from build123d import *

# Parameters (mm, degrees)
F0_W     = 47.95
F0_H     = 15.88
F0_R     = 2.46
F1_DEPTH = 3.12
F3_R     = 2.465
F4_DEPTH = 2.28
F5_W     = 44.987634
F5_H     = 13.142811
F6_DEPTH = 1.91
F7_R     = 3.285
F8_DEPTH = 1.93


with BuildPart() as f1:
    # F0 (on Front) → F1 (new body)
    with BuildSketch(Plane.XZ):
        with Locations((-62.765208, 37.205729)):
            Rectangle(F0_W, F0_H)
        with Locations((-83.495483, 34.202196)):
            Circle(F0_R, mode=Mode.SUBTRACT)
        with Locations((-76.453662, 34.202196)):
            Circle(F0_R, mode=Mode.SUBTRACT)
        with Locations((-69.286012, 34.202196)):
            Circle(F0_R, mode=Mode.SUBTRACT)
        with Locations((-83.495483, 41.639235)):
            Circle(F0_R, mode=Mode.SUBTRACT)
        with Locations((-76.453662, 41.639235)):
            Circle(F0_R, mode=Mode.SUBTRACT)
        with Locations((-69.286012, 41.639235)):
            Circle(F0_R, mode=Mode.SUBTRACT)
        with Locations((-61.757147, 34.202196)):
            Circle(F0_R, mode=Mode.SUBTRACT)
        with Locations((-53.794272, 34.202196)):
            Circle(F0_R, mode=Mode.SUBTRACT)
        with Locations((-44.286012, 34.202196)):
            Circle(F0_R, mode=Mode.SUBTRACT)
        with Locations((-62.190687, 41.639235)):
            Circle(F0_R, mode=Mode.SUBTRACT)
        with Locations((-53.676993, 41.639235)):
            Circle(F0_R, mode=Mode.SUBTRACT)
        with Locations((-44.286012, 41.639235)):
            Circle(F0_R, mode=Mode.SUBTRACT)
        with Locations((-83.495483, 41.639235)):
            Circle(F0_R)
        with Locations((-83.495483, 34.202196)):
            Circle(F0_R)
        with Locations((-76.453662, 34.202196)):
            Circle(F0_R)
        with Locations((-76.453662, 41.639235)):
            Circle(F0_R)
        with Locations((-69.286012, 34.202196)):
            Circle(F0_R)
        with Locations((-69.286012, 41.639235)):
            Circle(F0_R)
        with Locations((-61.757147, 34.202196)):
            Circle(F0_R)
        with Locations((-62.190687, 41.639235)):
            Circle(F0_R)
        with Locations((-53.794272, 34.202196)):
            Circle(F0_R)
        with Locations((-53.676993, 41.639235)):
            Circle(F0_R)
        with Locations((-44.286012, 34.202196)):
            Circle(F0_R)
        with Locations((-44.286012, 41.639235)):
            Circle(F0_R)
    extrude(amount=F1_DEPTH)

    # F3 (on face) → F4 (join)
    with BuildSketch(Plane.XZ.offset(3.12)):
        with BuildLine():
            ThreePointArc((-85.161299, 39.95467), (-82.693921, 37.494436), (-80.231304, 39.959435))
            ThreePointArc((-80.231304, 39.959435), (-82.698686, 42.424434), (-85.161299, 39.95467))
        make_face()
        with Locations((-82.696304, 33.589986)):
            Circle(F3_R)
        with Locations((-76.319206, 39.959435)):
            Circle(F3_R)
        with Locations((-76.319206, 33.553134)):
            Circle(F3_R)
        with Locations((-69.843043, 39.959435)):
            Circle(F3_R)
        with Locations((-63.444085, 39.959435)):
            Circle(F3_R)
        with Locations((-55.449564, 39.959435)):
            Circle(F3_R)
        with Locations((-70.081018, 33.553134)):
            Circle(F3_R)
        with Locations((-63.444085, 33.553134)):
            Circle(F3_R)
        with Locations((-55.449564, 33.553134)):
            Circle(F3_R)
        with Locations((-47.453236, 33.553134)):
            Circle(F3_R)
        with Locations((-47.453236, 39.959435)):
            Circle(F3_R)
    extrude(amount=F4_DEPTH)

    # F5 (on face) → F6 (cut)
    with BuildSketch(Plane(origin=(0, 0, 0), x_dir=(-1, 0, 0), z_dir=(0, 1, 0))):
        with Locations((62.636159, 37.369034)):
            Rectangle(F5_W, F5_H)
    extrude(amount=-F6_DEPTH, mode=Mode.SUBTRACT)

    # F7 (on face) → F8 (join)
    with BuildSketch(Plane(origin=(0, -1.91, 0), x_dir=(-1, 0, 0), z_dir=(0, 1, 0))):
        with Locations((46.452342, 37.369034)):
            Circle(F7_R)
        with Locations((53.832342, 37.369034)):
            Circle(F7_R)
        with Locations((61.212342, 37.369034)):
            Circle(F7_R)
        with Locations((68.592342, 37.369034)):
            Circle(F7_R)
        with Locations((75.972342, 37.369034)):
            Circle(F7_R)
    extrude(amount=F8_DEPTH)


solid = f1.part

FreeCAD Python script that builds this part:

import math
import FreeCAD as App
import Part
import Sketcher
from FreeCAD import Vector


def add_polygon(sketch, points):
    """Adds a closed chain of lines whose ends are joined by coincident constraints."""
    first, n = sketch.GeometryCount, len(points)
    for a, b in zip(points, points[1:] + points[:1]):
        sketch.addGeometry(Part.LineSegment(App.Vector(*a, 0), App.Vector(*b, 0)), False)
    for i in range(n):
        sketch.addConstraint(Sketcher.Constraint("Coincident", first + i, 2, first + (i + 1) % n, 1))

doc = App.newDocument("Part")
body = doc.addObject("PartDesign::Body", "Body")

# Sketch on XZ plane
sketch1 = body.newObject("Sketcher::SketchObject", "Sketch")
sketch1.AttachmentSupport = (doc.getObject("XZ_Plane"), [""])
sketch1.MapMode = "FlatFace"
add_polygon(sketch1, [(-86.740208, 45.145729), (-86.740208, 29.265729), (-38.790208, 29.265729), (-38.790208, 45.145729)])  # lines 0-3
sketch1.addConstraint([
    Sketcher.Constraint("Vertical", 0),
    Sketcher.Constraint("Horizontal", 1),
    Sketcher.Constraint("Vertical", 2),
    Sketcher.Constraint("Horizontal", 3),
    Sketcher.Constraint("DistanceX", 1, 1, 1, 2, 47.95),
    Sketcher.Constraint("DistanceY", 0, 2, 0, 1, 15.88),
    Sketcher.Constraint("DistanceY", -1, 1, 0, 2, 29.265729),
    Sketcher.Constraint("DistanceX", 0, 2, -1, 1, 86.740208),
])
pad1 = body.newObject("PartDesign::Pad", "Pad")
pad1.Profile = sketch1
pad1.Length = 3.12

# Sketch on XZ plane
sketch2 = body.newObject("Sketcher::SketchObject", "Sketch001")
sketch2.AttachmentSupport = (doc.getObject("XZ_Plane"), [""])
sketch2.MapMode = "FlatFace"
sketch2.AttachmentOffset = App.Placement(Vector(0, 0, 3.12), App.Rotation())
sketch2.addGeometry([
    Part.ArcOfCircle(Part.Circle(Vector(-82.696304, 39.959435, 0), Vector(0, 0, 1), 2.465), math.radians(-179.889252), math.radians(0.000008)),  # 0
    Part.ArcOfCircle(Part.Circle(Vector(-82.696304, 39.959435, 0), Vector(0, 0, 1), 2.465), math.radians(-0.000008), math.radians(180.110765)),  # 1
    Part.Circle(Vector(-82.696304, 33.589986, 0), Vector(0, 0, 1), 2.465),  # 2
    Part.Circle(Vector(-76.319206, 39.959435, 0), Vector(0, 0, 1), 2.465),  # 3
    Part.Circle(Vector(-76.319206, 33.553134, 0), Vector(0, 0, 1), 2.465),  # 4
    Part.Circle(Vector(-69.843043, 39.959435, 0), Vector(0, 0, 1), 2.465),  # 5
    Part.Circle(Vector(-63.444085, 39.959435, 0), Vector(0, 0, 1), 2.465),  # 6
    Part.Circle(Vector(-55.449564, 39.959435, 0), Vector(0, 0, 1), 2.465),  # 7
    Part.Circle(Vector(-70.081018, 33.553134, 0), Vector(0, 0, 1), 2.465),  # 8
    Part.Circle(Vector(-63.444085, 33.553134, 0), Vector(0, 0, 1), 2.465),  # 9
    Part.Circle(Vector(-55.449564, 33.553134, 0), Vector(0, 0, 1), 2.465),  # 10
    Part.Circle(Vector(-47.453236, 33.553134, 0), Vector(0, 0, 1), 2.465),  # 11
    Part.Circle(Vector(-47.453236, 39.959435, 0), Vector(0, 0, 1), 2.465),  # 12
], False)
sketch2.addConstraint([
    Sketcher.Constraint("Tangent", 0, 1, 1, 2),
    Sketcher.Constraint("Coincident", 1, 1, 0, 2),
    Sketcher.Constraint("Equal", 1, 2),
    Sketcher.Constraint("Equal", 2, 3),
    Sketcher.Constraint("Equal", 3, 4),
    Sketcher.Constraint("Equal", 4, 5),
    Sketcher.Constraint("Equal", 5, 6),
    Sketcher.Constraint("Equal", 6, 7),
    Sketcher.Constraint("Equal", 7, 8),
    Sketcher.Constraint("Equal", 8, 9),
    Sketcher.Constraint("Equal", 9, 10),
    Sketcher.Constraint("Equal", 10, 11),
    Sketcher.Constraint("Equal", 11, 12),
    Sketcher.Constraint("Horizontal", 1, 3, 3, 3),
    Sketcher.Constraint("Horizontal", 3, 3, 5, 3),
    Sketcher.Constraint("Horizontal", 5, 3, 6, 3),
    Sketcher.Constraint("Horizontal", 6, 3, 7, 3),
    Sketcher.Constraint("Horizontal", 4, 3, 8, 3),
    Sketcher.Constraint("Horizontal", 8, 3, 9, 3),
    Sketcher.Constraint("Horizontal", 9, 3, 10, 3),
    Sketcher.Constraint("Horizontal", 10, 3, 11, 3),
    Sketcher.Constraint("Horizontal", 7, 3, 12, 3),
    Sketcher.Constraint("Horizontal", 12, 3, 1, 1),
    Sketcher.Constraint("Vertical", 1, 3, 2, 3),
    Sketcher.Constraint("Vertical", 3, 3, 4, 3),
    Sketcher.Constraint("Vertical", 6, 3, 9, 3),
    Sketcher.Constraint("Vertical", 7, 3, 10, 3),
    Sketcher.Constraint("Vertical", 11, 3, 12, 3),
    Sketcher.Constraint("Diameter", 2, 4.93),
    Sketcher.Constraint("DistanceX", 0, 1, -1, 1, 85.161299),
    Sketcher.Constraint("DistanceX", 2, 3, 3, 3, 6.377098),
    Sketcher.Constraint("DistanceY", 4, 3, 3, 3, 6.406301),
    Sketcher.Constraint("DistanceX", 8, 3, -1, 1, 70.081018),
    Sketcher.Constraint("DistanceY", -1, 1, 0, 1, 39.95467),
    Sketcher.Constraint("DistanceY", 2, 3, 0, 3, 6.369449),
    Sketcher.Constraint("DistanceX", 0, 3, 5, 3, 12.853261),
    Sketcher.Constraint("DistanceX", 3, 3, 6, 3, 12.875121),
    Sketcher.Constraint("DistanceX", 6, 3, 7, 3, 7.994521),
    Sketcher.Constraint("DistanceX", 10, 3, 11, 3, 7.996328),
    Sketcher.Constraint("DistanceY", -1, 1, 0, 3, 39.959435),
])
pad2 = body.newObject("PartDesign::Pad", "Pad001")
pad2.Profile = sketch2
pad2.Length = 2.28

# Sketch on XZ plane
sketch3 = body.newObject("Sketcher::SketchObject", "Sketch002")
sketch3.AttachmentSupport = (doc.getObject("XZ_Plane"), [""])
sketch3.MapMode = "FlatFace"
add_polygon(sketch3, [(-40.142342, 43.940439), (-40.142342, 30.797628), (-85.129976, 30.797628), (-85.129976, 43.940439)])  # lines 0-3
sketch3.addConstraint([
    Sketcher.Constraint("Vertical", 0),
    Sketcher.Constraint("Horizontal", 1),
    Sketcher.Constraint("Vertical", 2),
    Sketcher.Constraint("Horizontal", 3),
    Sketcher.Constraint("DistanceY", 0, 2, 0, 1, 13.142811),
    Sketcher.Constraint("DistanceX", 1, 2, 1, 1, 44.987634),
    Sketcher.Constraint("DistanceY", -1, 1, 0, 2, 30.797628),
    Sketcher.Constraint("DistanceX", 0, 2, -1, 1, 40.142342),
])
pocket1 = body.newObject("PartDesign::Pocket", "Pocket")
pocket1.Profile = sketch3
pocket1.Length = 1.91
pocket1.Reversed = True

# Sketch on XZ plane
sketch4 = body.newObject("Sketcher::SketchObject", "Sketch003")
sketch4.AttachmentSupport = (doc.getObject("XZ_Plane"), [""])
sketch4.MapMode = "FlatFace"
sketch4.AttachmentOffset = App.Placement(Vector(0, 0, 1.91), App.Rotation())
sketch4.addGeometry([
    Part.Circle(Vector(-46.452342, 37.369034, 0), Vector(0, 0, 1), 3.285),  # 0
    Part.Circle(Vector(-53.832342, 37.369034, 0), Vector(0, 0, 1), 3.285),  # 1
    Part.Circle(Vector(-61.212342, 37.369034, 0), Vector(0, 0, 1), 3.285),  # 2
    Part.Circle(Vector(-68.592342, 37.369034, 0), Vector(0, 0, 1), 3.285),  # 3
    Part.Circle(Vector(-75.972342, 37.369034, 0), Vector(0, 0, 1), 3.285),  # 4
], False)
sketch4.addConstraint([
    Sketcher.Constraint("Equal", 0, 1),
    Sketcher.Constraint("Equal", 1, 2),
    Sketcher.Constraint("Equal", 2, 3),
    Sketcher.Constraint("Equal", 3, 4),
    Sketcher.Constraint("Horizontal", 0, 3, 1, 3),
    Sketcher.Constraint("Horizontal", 1, 3, 2, 3),
    Sketcher.Constraint("Horizontal", 2, 3, 3, 3),
    Sketcher.Constraint("Horizontal", 3, 3, 4, 3),
    Sketcher.Constraint("Diameter", 0, 6.57),
    Sketcher.Constraint("DistanceX", 1, 3, 0, 3, 7.38),
    Sketcher.Constraint("DistanceX", 2, 3, 1, 3, 7.38),
    Sketcher.Constraint("DistanceX", 3, 3, 2, 3, 7.38),
    Sketcher.Constraint("DistanceX", 4, 3, 3, 3, 7.38),
    Sketcher.Constraint("DistanceX", 1, 3, -1, 1, 53.832342),
    Sketcher.Constraint("DistanceY", -1, 1, 0, 3, 37.369034),
])
pad3 = body.newObject("PartDesign::Pad", "Pad002")
pad3.Profile = sketch4
pad3.Length = 1.93
pad3.Reversed = True

doc.recompute()
